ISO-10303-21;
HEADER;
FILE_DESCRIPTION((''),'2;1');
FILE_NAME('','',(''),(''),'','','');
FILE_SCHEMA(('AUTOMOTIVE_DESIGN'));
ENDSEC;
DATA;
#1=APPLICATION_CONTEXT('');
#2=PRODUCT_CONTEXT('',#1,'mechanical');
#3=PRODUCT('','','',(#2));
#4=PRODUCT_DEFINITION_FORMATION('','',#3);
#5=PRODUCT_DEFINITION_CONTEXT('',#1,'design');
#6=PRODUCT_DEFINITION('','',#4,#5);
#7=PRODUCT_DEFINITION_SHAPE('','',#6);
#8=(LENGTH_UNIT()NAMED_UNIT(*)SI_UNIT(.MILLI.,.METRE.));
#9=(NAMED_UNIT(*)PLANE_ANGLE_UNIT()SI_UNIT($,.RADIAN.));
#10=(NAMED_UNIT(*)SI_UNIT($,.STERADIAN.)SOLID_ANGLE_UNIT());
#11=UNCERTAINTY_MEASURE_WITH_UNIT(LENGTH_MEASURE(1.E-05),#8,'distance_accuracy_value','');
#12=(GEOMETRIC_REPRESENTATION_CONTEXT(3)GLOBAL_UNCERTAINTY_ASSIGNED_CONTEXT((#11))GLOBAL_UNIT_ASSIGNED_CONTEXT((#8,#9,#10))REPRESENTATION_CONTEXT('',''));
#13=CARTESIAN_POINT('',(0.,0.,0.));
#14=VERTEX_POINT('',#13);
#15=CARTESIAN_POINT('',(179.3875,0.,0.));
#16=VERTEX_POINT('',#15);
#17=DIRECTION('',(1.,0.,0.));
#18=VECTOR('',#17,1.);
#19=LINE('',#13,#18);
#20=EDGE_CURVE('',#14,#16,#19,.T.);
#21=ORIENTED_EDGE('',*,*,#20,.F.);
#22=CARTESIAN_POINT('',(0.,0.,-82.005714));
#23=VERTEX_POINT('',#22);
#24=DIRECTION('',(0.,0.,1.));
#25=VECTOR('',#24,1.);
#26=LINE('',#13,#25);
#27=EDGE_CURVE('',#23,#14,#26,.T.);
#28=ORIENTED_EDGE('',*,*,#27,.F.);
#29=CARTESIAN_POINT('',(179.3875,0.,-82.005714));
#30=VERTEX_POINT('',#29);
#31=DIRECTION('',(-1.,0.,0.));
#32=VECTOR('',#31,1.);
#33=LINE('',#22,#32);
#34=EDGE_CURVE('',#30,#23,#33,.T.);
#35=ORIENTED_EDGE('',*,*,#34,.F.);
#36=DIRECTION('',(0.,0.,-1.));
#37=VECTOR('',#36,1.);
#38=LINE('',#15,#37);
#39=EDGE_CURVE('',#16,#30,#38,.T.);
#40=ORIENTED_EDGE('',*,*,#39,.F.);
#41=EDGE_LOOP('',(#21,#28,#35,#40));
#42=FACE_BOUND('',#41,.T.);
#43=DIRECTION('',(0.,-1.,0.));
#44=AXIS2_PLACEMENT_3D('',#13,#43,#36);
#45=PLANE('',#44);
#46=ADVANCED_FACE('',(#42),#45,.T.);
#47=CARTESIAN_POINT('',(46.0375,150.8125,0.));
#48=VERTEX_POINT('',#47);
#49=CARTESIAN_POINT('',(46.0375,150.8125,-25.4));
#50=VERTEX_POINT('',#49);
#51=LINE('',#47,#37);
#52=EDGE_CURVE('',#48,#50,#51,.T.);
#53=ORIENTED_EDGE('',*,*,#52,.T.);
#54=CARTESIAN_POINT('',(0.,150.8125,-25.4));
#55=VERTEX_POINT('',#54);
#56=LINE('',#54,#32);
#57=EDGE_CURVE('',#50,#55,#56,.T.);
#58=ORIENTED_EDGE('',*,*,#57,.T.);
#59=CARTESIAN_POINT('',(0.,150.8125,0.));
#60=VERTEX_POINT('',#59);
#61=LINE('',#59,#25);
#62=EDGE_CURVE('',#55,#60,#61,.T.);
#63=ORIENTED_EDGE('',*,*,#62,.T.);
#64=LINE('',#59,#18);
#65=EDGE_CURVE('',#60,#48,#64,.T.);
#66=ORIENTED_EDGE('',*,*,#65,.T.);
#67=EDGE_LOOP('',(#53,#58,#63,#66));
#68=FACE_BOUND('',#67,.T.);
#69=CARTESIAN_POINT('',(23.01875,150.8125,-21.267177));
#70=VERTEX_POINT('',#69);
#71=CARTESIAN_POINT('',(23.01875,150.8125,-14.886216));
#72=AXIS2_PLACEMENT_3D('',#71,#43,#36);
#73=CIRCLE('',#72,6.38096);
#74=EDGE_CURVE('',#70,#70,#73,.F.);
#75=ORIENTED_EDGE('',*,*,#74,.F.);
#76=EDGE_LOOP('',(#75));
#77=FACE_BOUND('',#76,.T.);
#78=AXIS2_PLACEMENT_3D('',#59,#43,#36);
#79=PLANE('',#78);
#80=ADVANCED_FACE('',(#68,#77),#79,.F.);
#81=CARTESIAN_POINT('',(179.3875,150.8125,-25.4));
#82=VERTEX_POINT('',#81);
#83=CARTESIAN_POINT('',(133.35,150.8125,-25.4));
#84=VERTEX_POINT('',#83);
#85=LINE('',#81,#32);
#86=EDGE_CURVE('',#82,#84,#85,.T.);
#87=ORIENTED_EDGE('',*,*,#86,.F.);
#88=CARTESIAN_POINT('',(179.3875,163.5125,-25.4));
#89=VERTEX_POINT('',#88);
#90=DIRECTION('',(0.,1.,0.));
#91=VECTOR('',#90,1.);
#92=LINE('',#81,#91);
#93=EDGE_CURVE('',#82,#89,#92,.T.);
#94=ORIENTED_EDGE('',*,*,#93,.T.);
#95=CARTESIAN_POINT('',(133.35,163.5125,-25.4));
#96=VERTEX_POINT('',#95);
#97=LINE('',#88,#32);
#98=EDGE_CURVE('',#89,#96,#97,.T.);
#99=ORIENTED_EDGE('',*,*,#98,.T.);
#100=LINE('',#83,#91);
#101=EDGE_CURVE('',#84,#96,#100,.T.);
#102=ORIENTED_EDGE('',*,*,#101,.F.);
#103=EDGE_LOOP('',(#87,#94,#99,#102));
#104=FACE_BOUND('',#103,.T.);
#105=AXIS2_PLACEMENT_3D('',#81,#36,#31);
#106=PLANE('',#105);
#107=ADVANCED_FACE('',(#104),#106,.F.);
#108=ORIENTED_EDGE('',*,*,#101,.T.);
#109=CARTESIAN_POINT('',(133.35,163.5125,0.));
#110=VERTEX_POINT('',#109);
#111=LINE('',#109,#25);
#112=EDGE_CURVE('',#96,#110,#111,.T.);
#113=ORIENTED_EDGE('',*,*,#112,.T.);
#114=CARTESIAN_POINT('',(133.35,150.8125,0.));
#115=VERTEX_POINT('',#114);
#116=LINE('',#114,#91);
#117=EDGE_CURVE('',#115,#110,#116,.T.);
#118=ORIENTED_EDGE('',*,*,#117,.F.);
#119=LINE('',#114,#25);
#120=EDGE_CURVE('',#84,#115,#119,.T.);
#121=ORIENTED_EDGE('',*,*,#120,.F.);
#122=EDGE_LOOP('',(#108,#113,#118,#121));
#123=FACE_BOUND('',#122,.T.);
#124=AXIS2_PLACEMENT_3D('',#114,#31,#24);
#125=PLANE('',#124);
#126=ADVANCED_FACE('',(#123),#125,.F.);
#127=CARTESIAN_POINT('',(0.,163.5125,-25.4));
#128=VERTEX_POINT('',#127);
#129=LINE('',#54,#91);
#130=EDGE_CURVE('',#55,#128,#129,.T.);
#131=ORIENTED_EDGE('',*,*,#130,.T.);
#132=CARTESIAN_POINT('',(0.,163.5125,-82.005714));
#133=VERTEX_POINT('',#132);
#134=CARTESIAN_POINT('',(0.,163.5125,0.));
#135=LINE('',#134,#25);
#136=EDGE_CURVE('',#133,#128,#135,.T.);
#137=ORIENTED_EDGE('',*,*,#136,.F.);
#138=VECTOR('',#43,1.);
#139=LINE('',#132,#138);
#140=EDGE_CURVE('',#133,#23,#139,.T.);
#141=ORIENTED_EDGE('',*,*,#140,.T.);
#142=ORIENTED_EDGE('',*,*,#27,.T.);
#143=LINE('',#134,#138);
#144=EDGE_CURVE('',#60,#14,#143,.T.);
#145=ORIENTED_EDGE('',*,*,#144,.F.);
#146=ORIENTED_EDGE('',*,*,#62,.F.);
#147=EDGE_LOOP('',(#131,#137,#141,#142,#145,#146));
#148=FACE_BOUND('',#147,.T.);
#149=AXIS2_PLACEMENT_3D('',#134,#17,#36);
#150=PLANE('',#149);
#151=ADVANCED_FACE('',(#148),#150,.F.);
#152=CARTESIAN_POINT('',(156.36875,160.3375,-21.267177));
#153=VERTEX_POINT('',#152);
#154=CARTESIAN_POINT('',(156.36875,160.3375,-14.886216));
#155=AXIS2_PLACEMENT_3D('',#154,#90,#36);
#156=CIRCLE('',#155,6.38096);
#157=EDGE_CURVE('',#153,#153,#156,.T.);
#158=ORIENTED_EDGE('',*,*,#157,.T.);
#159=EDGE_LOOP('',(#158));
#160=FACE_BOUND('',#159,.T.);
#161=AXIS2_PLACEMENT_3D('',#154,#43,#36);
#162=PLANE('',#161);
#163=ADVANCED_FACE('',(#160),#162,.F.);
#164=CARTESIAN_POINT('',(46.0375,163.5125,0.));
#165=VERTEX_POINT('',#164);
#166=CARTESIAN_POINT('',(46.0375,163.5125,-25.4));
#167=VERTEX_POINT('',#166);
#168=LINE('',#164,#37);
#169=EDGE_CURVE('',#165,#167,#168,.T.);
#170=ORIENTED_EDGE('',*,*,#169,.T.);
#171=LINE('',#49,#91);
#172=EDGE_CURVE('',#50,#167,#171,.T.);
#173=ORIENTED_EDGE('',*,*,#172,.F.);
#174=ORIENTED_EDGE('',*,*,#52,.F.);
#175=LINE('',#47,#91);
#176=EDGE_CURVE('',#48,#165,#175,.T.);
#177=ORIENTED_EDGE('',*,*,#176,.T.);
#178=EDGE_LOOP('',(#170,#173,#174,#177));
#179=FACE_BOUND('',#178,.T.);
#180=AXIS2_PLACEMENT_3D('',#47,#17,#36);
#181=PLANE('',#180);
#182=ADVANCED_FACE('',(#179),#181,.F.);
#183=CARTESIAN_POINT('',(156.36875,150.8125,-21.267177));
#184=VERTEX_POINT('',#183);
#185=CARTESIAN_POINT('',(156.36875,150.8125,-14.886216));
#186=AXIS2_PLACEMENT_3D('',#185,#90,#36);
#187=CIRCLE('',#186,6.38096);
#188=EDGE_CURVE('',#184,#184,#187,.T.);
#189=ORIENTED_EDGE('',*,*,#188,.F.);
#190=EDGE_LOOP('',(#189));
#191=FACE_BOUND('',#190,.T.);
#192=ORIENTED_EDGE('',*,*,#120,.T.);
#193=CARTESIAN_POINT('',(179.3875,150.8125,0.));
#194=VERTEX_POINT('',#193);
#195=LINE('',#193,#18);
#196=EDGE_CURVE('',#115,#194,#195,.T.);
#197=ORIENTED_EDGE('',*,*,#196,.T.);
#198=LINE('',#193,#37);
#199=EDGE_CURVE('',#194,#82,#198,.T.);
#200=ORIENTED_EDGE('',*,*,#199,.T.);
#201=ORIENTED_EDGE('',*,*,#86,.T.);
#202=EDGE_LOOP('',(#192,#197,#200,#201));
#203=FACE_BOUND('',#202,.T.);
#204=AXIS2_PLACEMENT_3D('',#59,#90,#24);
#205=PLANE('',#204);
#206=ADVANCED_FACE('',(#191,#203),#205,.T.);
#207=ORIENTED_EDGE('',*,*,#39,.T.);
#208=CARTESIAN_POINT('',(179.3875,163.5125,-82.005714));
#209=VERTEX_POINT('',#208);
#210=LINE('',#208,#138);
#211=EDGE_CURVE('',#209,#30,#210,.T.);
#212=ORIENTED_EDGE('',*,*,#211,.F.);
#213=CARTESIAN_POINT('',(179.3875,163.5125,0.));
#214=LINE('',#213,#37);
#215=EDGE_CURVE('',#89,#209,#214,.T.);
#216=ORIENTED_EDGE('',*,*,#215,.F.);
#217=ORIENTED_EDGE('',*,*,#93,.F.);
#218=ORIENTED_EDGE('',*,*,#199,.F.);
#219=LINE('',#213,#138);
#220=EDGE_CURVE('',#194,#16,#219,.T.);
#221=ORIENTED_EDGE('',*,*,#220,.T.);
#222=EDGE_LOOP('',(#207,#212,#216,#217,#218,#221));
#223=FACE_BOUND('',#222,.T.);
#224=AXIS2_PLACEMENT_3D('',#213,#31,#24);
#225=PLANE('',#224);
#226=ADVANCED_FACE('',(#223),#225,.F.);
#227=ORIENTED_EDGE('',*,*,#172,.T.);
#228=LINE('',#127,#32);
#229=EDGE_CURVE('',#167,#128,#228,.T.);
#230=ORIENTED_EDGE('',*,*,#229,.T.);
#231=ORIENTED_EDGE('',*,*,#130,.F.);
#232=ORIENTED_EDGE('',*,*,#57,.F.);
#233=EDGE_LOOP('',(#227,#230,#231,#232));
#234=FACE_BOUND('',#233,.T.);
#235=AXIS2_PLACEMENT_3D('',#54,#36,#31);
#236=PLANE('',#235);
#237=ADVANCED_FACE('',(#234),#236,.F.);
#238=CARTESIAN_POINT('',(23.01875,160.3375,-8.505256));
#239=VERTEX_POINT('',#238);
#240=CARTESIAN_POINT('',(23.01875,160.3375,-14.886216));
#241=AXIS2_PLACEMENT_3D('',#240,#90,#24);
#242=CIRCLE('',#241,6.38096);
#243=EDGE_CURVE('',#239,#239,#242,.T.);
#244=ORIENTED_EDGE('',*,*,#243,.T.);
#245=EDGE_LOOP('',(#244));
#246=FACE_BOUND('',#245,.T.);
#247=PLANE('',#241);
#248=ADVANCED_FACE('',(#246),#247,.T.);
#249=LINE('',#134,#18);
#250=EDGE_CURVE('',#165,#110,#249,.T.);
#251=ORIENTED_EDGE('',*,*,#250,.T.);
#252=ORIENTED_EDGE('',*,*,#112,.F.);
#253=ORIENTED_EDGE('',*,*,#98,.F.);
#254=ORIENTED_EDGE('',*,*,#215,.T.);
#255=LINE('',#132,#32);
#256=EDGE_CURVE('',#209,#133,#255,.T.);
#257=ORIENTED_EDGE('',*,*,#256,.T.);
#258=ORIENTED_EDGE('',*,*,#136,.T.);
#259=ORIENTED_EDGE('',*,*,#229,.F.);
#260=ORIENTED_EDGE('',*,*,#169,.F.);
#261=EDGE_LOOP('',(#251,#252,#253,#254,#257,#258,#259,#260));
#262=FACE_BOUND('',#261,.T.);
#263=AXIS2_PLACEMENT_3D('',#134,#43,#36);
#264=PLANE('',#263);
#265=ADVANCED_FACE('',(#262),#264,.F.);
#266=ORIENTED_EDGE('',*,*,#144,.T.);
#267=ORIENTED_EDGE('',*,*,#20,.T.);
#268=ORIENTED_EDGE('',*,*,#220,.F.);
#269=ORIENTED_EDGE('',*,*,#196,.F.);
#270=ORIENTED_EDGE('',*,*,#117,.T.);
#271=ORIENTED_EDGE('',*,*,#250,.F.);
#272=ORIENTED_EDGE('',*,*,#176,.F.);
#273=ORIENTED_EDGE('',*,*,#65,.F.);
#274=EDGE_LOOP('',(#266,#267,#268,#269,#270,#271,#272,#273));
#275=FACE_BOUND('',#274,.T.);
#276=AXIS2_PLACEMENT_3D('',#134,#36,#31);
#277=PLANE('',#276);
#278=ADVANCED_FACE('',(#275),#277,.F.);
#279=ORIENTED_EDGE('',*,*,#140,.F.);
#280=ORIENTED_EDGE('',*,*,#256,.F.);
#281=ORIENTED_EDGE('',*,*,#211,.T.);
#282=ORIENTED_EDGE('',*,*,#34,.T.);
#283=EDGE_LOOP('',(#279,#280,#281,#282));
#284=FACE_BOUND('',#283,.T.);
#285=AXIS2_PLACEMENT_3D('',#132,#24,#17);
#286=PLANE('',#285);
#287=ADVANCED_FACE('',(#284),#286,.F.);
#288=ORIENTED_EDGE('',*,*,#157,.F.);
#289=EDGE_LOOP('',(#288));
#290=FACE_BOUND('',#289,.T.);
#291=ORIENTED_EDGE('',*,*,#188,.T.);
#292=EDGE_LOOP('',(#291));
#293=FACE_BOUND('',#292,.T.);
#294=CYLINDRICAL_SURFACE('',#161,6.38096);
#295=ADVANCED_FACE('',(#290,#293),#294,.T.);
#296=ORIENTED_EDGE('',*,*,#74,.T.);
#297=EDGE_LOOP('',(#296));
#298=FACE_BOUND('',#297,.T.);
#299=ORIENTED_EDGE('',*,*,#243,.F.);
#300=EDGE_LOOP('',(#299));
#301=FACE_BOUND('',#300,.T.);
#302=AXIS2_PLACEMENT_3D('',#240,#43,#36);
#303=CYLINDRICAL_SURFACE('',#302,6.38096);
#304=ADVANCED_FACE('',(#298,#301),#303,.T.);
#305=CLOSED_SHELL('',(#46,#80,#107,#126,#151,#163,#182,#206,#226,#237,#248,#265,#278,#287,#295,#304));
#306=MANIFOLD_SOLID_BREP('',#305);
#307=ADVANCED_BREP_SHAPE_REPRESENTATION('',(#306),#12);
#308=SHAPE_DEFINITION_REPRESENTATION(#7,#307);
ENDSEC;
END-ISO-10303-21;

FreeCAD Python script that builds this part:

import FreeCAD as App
import Part
import Sketcher
from FreeCAD import Vector
Q = App.Units.Quantity


def add_polygon(sketch, points):
    """Adds a closed chain of lines whose ends are joined by coincident constraints."""
    first, n = sketch.GeometryCount, len(points)
    for a, b in zip(points, points[1:] + points[:1]):
        sketch.addGeometry(Part.LineSegment(App.Vector(*a, 0), App.Vector(*b, 0)), False)
    for i in range(n):
        sketch.addConstraint(Sketcher.Constraint("Coincident", first + i, 2, first + (i + 1) % n, 1))

doc = App.newDocument("Part")
body = doc.addObject("PartDesign::Body", "Body")

sketch1 = body.newObject("Sketcher::SketchObject", "Sketch")
sketch1.AttachmentSupport = (doc.getObject("XZ_Plane"), [""])
sketch1.MapMode = "FlatFace"
add_polygon(sketch1, [(0, -82), (0, 0), (179, 0), (179, -82)])
sketch1.addConstraint([
    Sketcher.Constraint("Vertical", 0),
    Sketcher.Constraint("Horizontal", 1),
    Sketcher.Constraint("Vertical", 2),
    Sketcher.Constraint("Horizontal", 3),
    Sketcher.Constraint("Coincident", 0, 2, -1, 1),
    Sketcher.Constraint("DistanceX", 1, 1, 1, 2, Q("7.0625 in")),
    Sketcher.Constraint("DistanceY", 0, 1, 0, 2, Q("82.005714 mm")),
])
pad1 = body.newObject("PartDesign::Pad", "Pad")
pad1.Profile = sketch1
pad1.Length = Q("6.4375 in")
pad1.Reversed = True

sketch2 = body.newObject("Sketcher::SketchObject", "Sketch001")
sketch2.AttachmentSupport = (doc.getObject("XZ_Plane"), [""])
sketch2.MapMode = "FlatFace"
sketch2.AttachmentOffset = App.Placement(Vector(0, 0, -6.4375 * 25.4), App.Rotation())
add_polygon(sketch2, [(0, -25), (0, 0), (46, 0), (46, -25)])
add_polygon(sketch2, [(133, -25), (133, 0), (179, 0), (179, -25)])
sketch2.addConstraint([
    Sketcher.Constraint("Vertical", 0),
    Sketcher.Constraint("Horizontal", 1),
    Sketcher.Constraint("Vertical", 2),
    Sketcher.Constraint("Horizontal", 3),
    Sketcher.Constraint("Vertical", 4),
    Sketcher.Constraint("Horizontal", 5),
    Sketcher.Constraint("Vertical", 6),
    Sketcher.Constraint("Horizontal", 7),
    Sketcher.Constraint("Coincident", 0, 2, -1, 1),
    Sketcher.Constraint("PointOnObject", 4, 2, -1),
    Sketcher.Constraint("Horizontal", 3, 2, 6, 2),
    Sketcher.Constraint("Equal", 3, 5),
    Sketcher.Constraint("DistanceY", 0, 1, 0, 2, Q("1 in")),
    Sketcher.Constraint("DistanceX", 1, 1, 1, 2, Q("1.8125 in")),
    Sketcher.Constraint("DistanceX", -1, 1, 4, 2, Q("5.25 in")),
])
pocket1 = body.newObject("PartDesign::Pocket", "Pocket")
pocket1.Profile = sketch2
pocket1.Length = Q("0.5 in")
pocket1.Reversed = True

sketch3 = body.newObject("Sketcher::SketchObject", "Sketch002")
sketch3.AttachmentSupport = (doc.getObject("XZ_Plane"), [""])
sketch3.MapMode = "FlatFace"
sketch3.AttachmentOffset = App.Placement(Vector(0, 0, -5.9375 * 25.4), App.Rotation())
sketch3.addGeometry([
    Part.Circle(Vector(23, -15, 0), Vector(0, 0, 1), 6),
    Part.Circle(Vector(156, -15, 0), Vector(0, 0, 1), 6),
], False)
sketch3.addConstraint([
    Sketcher.Constraint("Equal", 0, 1),
    Sketcher.Constraint("Horizontal", 0, 3, 1, 3),
    Sketcher.Constraint("DistanceX", 0, 3, 1, 3, Q("5.25 in")),
    Sketcher.Constraint("Diameter", 0, Q("12.761921 mm")),
    Sketcher.Constraint("DistanceX", -1, 1, 0, 3, Q("0.90625 in")),
    Sketcher.Constraint("DistanceY", 0, 3, -1, 1, Q("14.886216 mm")),
])
pad2 = body.newObject("PartDesign::Pad", "Pad001")
pad2.Profile = sketch3
pad2.Length = Q("0.375 in")
pad2.Reversed = True

doc.recompute()
